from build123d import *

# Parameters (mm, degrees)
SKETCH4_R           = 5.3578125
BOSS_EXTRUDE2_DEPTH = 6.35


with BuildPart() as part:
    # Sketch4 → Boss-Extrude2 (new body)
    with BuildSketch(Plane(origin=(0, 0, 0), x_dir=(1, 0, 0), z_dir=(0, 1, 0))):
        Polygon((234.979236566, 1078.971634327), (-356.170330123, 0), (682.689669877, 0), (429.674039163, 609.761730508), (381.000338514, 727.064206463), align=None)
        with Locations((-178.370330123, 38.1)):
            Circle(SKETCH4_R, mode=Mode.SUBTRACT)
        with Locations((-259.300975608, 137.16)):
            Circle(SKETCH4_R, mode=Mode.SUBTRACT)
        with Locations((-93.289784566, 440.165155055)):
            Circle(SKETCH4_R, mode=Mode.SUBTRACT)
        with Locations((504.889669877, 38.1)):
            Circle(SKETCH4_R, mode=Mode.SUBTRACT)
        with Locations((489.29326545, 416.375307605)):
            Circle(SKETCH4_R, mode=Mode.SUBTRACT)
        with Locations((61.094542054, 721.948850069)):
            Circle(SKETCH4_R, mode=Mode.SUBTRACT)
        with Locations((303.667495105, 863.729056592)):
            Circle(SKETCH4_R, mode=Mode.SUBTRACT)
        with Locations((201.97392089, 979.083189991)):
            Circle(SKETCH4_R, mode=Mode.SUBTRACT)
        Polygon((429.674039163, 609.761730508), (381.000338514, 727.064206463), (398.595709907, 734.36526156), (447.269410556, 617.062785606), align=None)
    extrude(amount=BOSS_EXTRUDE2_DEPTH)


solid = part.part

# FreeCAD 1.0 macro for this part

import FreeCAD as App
import Part
import Sketcher

V = App.Vector
Q = App.Units.Quantity


def add_polygon(sketch, points):
    """Adds a closed chain of lines whose ends are joined by coincident constraints."""
    first, n = sketch.GeometryCount, len(points)
    for a, b in zip(points, points[1:] + points[:1]):
        sketch.addGeometry(Part.LineSegment(App.Vector(*a, 0), App.Vector(*b, 0)), False)
    for i in range(n):
        sketch.addConstraint(Sketcher.Constraint("Coincident", first + i, 2, first + (i + 1) % n, 1))

doc = App.newDocument("Part")
body = doc.addObject("PartDesign::Body", "Body")

sketch1 = body.newObject("Sketcher::SketchObject", "Sketch")
sketch1.AttachmentSupport = (doc.getObject("XZ_Plane"), [""])
sketch1.MapMode = "FlatFace"
add_polygon(sketch1, [(235, -1079), (-356, 0), (683, 0), (430, -610), (447, -617), (399, -734), (381, -727)])
sketch1.addGeometry(Part.Circle(V(-178, -38, 0), V(0, 0, 1), 5), False)
sketch1.addGeometry(Part.Circle(V(-259, -137, 0), V(0, 0, 1), 5), False)
sketch1.addGeometry(Part.Circle(V(-93, -440, 0), V(0, 0, 1), 5), False)
sketch1.addGeometry(Part.Circle(V(505, -38, 0), V(0, 0, 1), 5), False)
sketch1.addGeometry(Part.Circle(V(489, -416, 0), V(0, 0, 1), 5), False)
sketch1.addGeometry(Part.Circle(V(61, -722, 0), V(0, 0, 1), 5), False)
sketch1.addGeometry(Part.Circle(V(304, -864, 0), V(0, 0, 1), 5), False)
sketch1.addGeometry(Part.Circle(V(202, -979, 0), V(0, 0, 1), 5), False)
sketch1.addConstraint([
    Sketcher.Constraint("Horizontal", 1),
    Sketcher.Constraint("Equal", 7, 8),
    Sketcher.Constraint("Equal", 8, 9),
    Sketcher.Constraint("Equal", 9, 10),
    Sketcher.Constraint("Equal", 10, 11),
    Sketcher.Constraint("Equal", 11, 12),
    Sketcher.Constraint("Equal", 12, 13),
    Sketcher.Constraint("Equal", 13, 14),
    Sketcher.Constraint("PointOnObject", 0, 2, -1),
    Sketcher.Constraint("Perpendicular", 2, 3),
    Sketcher.Constraint("Perpendicular", 3, 4),
    Sketcher.Constraint("Perpendicular", 4, 5),
    Sketcher.Constraint("Perpendicular", 5, 6),
    Sketcher.Constraint("Horizontal", 7, 3, 10, 3),
    Sketcher.Constraint("Equal", 3, 5),
    Sketcher.Constraint("Distance", 4, Q("5 in")),
    Sketcher.Constraint("Distance", 6, Q("15 in")),
    Sketcher.Constraint("Diameter", 7, Q("0.421875 in")),
    Sketcher.Constraint("DistanceX", 1, 1, 1, 2, Q("40.9 in")),
    Sketcher.Constraint("DistanceX", 0, 2, 7, 3, Q("7 in")),
    Sketcher.Constraint("DistanceX", 10, 3, 1, 2, Q("7 in")),
    Sketcher.Constraint("DistanceY", 7, 3, -1, 1, Q("1.5 in")),
    Sketcher.Constraint("DistanceY", 8, 3, -1, 1, Q("5.4 in")),
    Sketcher.Constraint("Distance", 3, Q("0.75 in")),
    Sketcher.Constraint("Distance", 0, Q("48.437 in")),
    Sketcher.Constraint("Distance", 2, Q("25.991 in")),
    Sketcher.Constraint("DistanceX", 8, 3, -1, 1, Q("10.2086998 in")),
    Sketcher.Constraint("DistanceX", 13, 3, 5, 2, Q("3.0446001 in")),
    Sketcher.Constraint("DistanceY", 13, 3, 9, 3, Q("423.563902 mm")),
    Sketcher.Constraint("DistanceX", 7, 3, -1, 1, Q("178.37033 mm")),
    Sketcher.Constraint("DistanceY", 12, 3, -1, 1, Q("721.94885 mm")),
    Sketcher.Constraint("DistanceX", -1, 1, 14, 3, Q("201.973921 mm")),
    Sketcher.Constraint("DistanceY", 14, 3, -1, 1, Q("979.08319 mm")),
    Sketcher.Constraint("DistanceX", 8, 3, 9, 3, Q("166.011191 mm")),
    Sketcher.Constraint("DistanceX", 9, 3, 11, 3, Q("582.58305 mm")),
    Sketcher.Constraint("DistanceY", 13, 3, 11, 3, Q("447.353749 mm")),
    Sketcher.Constraint("DistanceX", 12, 3, 14, 3, Q("140.879379 mm")),
    Sketcher.Constraint("DistanceY", 3, 2, 11, 3, Q("200.687478 mm")),
])
pad1 = body.newObject("PartDesign::Pad", "Pad")
pad1.Profile = sketch1
pad1.Length = Q("0.25 in")
pad1.Reversed = True

doc.recompute()
